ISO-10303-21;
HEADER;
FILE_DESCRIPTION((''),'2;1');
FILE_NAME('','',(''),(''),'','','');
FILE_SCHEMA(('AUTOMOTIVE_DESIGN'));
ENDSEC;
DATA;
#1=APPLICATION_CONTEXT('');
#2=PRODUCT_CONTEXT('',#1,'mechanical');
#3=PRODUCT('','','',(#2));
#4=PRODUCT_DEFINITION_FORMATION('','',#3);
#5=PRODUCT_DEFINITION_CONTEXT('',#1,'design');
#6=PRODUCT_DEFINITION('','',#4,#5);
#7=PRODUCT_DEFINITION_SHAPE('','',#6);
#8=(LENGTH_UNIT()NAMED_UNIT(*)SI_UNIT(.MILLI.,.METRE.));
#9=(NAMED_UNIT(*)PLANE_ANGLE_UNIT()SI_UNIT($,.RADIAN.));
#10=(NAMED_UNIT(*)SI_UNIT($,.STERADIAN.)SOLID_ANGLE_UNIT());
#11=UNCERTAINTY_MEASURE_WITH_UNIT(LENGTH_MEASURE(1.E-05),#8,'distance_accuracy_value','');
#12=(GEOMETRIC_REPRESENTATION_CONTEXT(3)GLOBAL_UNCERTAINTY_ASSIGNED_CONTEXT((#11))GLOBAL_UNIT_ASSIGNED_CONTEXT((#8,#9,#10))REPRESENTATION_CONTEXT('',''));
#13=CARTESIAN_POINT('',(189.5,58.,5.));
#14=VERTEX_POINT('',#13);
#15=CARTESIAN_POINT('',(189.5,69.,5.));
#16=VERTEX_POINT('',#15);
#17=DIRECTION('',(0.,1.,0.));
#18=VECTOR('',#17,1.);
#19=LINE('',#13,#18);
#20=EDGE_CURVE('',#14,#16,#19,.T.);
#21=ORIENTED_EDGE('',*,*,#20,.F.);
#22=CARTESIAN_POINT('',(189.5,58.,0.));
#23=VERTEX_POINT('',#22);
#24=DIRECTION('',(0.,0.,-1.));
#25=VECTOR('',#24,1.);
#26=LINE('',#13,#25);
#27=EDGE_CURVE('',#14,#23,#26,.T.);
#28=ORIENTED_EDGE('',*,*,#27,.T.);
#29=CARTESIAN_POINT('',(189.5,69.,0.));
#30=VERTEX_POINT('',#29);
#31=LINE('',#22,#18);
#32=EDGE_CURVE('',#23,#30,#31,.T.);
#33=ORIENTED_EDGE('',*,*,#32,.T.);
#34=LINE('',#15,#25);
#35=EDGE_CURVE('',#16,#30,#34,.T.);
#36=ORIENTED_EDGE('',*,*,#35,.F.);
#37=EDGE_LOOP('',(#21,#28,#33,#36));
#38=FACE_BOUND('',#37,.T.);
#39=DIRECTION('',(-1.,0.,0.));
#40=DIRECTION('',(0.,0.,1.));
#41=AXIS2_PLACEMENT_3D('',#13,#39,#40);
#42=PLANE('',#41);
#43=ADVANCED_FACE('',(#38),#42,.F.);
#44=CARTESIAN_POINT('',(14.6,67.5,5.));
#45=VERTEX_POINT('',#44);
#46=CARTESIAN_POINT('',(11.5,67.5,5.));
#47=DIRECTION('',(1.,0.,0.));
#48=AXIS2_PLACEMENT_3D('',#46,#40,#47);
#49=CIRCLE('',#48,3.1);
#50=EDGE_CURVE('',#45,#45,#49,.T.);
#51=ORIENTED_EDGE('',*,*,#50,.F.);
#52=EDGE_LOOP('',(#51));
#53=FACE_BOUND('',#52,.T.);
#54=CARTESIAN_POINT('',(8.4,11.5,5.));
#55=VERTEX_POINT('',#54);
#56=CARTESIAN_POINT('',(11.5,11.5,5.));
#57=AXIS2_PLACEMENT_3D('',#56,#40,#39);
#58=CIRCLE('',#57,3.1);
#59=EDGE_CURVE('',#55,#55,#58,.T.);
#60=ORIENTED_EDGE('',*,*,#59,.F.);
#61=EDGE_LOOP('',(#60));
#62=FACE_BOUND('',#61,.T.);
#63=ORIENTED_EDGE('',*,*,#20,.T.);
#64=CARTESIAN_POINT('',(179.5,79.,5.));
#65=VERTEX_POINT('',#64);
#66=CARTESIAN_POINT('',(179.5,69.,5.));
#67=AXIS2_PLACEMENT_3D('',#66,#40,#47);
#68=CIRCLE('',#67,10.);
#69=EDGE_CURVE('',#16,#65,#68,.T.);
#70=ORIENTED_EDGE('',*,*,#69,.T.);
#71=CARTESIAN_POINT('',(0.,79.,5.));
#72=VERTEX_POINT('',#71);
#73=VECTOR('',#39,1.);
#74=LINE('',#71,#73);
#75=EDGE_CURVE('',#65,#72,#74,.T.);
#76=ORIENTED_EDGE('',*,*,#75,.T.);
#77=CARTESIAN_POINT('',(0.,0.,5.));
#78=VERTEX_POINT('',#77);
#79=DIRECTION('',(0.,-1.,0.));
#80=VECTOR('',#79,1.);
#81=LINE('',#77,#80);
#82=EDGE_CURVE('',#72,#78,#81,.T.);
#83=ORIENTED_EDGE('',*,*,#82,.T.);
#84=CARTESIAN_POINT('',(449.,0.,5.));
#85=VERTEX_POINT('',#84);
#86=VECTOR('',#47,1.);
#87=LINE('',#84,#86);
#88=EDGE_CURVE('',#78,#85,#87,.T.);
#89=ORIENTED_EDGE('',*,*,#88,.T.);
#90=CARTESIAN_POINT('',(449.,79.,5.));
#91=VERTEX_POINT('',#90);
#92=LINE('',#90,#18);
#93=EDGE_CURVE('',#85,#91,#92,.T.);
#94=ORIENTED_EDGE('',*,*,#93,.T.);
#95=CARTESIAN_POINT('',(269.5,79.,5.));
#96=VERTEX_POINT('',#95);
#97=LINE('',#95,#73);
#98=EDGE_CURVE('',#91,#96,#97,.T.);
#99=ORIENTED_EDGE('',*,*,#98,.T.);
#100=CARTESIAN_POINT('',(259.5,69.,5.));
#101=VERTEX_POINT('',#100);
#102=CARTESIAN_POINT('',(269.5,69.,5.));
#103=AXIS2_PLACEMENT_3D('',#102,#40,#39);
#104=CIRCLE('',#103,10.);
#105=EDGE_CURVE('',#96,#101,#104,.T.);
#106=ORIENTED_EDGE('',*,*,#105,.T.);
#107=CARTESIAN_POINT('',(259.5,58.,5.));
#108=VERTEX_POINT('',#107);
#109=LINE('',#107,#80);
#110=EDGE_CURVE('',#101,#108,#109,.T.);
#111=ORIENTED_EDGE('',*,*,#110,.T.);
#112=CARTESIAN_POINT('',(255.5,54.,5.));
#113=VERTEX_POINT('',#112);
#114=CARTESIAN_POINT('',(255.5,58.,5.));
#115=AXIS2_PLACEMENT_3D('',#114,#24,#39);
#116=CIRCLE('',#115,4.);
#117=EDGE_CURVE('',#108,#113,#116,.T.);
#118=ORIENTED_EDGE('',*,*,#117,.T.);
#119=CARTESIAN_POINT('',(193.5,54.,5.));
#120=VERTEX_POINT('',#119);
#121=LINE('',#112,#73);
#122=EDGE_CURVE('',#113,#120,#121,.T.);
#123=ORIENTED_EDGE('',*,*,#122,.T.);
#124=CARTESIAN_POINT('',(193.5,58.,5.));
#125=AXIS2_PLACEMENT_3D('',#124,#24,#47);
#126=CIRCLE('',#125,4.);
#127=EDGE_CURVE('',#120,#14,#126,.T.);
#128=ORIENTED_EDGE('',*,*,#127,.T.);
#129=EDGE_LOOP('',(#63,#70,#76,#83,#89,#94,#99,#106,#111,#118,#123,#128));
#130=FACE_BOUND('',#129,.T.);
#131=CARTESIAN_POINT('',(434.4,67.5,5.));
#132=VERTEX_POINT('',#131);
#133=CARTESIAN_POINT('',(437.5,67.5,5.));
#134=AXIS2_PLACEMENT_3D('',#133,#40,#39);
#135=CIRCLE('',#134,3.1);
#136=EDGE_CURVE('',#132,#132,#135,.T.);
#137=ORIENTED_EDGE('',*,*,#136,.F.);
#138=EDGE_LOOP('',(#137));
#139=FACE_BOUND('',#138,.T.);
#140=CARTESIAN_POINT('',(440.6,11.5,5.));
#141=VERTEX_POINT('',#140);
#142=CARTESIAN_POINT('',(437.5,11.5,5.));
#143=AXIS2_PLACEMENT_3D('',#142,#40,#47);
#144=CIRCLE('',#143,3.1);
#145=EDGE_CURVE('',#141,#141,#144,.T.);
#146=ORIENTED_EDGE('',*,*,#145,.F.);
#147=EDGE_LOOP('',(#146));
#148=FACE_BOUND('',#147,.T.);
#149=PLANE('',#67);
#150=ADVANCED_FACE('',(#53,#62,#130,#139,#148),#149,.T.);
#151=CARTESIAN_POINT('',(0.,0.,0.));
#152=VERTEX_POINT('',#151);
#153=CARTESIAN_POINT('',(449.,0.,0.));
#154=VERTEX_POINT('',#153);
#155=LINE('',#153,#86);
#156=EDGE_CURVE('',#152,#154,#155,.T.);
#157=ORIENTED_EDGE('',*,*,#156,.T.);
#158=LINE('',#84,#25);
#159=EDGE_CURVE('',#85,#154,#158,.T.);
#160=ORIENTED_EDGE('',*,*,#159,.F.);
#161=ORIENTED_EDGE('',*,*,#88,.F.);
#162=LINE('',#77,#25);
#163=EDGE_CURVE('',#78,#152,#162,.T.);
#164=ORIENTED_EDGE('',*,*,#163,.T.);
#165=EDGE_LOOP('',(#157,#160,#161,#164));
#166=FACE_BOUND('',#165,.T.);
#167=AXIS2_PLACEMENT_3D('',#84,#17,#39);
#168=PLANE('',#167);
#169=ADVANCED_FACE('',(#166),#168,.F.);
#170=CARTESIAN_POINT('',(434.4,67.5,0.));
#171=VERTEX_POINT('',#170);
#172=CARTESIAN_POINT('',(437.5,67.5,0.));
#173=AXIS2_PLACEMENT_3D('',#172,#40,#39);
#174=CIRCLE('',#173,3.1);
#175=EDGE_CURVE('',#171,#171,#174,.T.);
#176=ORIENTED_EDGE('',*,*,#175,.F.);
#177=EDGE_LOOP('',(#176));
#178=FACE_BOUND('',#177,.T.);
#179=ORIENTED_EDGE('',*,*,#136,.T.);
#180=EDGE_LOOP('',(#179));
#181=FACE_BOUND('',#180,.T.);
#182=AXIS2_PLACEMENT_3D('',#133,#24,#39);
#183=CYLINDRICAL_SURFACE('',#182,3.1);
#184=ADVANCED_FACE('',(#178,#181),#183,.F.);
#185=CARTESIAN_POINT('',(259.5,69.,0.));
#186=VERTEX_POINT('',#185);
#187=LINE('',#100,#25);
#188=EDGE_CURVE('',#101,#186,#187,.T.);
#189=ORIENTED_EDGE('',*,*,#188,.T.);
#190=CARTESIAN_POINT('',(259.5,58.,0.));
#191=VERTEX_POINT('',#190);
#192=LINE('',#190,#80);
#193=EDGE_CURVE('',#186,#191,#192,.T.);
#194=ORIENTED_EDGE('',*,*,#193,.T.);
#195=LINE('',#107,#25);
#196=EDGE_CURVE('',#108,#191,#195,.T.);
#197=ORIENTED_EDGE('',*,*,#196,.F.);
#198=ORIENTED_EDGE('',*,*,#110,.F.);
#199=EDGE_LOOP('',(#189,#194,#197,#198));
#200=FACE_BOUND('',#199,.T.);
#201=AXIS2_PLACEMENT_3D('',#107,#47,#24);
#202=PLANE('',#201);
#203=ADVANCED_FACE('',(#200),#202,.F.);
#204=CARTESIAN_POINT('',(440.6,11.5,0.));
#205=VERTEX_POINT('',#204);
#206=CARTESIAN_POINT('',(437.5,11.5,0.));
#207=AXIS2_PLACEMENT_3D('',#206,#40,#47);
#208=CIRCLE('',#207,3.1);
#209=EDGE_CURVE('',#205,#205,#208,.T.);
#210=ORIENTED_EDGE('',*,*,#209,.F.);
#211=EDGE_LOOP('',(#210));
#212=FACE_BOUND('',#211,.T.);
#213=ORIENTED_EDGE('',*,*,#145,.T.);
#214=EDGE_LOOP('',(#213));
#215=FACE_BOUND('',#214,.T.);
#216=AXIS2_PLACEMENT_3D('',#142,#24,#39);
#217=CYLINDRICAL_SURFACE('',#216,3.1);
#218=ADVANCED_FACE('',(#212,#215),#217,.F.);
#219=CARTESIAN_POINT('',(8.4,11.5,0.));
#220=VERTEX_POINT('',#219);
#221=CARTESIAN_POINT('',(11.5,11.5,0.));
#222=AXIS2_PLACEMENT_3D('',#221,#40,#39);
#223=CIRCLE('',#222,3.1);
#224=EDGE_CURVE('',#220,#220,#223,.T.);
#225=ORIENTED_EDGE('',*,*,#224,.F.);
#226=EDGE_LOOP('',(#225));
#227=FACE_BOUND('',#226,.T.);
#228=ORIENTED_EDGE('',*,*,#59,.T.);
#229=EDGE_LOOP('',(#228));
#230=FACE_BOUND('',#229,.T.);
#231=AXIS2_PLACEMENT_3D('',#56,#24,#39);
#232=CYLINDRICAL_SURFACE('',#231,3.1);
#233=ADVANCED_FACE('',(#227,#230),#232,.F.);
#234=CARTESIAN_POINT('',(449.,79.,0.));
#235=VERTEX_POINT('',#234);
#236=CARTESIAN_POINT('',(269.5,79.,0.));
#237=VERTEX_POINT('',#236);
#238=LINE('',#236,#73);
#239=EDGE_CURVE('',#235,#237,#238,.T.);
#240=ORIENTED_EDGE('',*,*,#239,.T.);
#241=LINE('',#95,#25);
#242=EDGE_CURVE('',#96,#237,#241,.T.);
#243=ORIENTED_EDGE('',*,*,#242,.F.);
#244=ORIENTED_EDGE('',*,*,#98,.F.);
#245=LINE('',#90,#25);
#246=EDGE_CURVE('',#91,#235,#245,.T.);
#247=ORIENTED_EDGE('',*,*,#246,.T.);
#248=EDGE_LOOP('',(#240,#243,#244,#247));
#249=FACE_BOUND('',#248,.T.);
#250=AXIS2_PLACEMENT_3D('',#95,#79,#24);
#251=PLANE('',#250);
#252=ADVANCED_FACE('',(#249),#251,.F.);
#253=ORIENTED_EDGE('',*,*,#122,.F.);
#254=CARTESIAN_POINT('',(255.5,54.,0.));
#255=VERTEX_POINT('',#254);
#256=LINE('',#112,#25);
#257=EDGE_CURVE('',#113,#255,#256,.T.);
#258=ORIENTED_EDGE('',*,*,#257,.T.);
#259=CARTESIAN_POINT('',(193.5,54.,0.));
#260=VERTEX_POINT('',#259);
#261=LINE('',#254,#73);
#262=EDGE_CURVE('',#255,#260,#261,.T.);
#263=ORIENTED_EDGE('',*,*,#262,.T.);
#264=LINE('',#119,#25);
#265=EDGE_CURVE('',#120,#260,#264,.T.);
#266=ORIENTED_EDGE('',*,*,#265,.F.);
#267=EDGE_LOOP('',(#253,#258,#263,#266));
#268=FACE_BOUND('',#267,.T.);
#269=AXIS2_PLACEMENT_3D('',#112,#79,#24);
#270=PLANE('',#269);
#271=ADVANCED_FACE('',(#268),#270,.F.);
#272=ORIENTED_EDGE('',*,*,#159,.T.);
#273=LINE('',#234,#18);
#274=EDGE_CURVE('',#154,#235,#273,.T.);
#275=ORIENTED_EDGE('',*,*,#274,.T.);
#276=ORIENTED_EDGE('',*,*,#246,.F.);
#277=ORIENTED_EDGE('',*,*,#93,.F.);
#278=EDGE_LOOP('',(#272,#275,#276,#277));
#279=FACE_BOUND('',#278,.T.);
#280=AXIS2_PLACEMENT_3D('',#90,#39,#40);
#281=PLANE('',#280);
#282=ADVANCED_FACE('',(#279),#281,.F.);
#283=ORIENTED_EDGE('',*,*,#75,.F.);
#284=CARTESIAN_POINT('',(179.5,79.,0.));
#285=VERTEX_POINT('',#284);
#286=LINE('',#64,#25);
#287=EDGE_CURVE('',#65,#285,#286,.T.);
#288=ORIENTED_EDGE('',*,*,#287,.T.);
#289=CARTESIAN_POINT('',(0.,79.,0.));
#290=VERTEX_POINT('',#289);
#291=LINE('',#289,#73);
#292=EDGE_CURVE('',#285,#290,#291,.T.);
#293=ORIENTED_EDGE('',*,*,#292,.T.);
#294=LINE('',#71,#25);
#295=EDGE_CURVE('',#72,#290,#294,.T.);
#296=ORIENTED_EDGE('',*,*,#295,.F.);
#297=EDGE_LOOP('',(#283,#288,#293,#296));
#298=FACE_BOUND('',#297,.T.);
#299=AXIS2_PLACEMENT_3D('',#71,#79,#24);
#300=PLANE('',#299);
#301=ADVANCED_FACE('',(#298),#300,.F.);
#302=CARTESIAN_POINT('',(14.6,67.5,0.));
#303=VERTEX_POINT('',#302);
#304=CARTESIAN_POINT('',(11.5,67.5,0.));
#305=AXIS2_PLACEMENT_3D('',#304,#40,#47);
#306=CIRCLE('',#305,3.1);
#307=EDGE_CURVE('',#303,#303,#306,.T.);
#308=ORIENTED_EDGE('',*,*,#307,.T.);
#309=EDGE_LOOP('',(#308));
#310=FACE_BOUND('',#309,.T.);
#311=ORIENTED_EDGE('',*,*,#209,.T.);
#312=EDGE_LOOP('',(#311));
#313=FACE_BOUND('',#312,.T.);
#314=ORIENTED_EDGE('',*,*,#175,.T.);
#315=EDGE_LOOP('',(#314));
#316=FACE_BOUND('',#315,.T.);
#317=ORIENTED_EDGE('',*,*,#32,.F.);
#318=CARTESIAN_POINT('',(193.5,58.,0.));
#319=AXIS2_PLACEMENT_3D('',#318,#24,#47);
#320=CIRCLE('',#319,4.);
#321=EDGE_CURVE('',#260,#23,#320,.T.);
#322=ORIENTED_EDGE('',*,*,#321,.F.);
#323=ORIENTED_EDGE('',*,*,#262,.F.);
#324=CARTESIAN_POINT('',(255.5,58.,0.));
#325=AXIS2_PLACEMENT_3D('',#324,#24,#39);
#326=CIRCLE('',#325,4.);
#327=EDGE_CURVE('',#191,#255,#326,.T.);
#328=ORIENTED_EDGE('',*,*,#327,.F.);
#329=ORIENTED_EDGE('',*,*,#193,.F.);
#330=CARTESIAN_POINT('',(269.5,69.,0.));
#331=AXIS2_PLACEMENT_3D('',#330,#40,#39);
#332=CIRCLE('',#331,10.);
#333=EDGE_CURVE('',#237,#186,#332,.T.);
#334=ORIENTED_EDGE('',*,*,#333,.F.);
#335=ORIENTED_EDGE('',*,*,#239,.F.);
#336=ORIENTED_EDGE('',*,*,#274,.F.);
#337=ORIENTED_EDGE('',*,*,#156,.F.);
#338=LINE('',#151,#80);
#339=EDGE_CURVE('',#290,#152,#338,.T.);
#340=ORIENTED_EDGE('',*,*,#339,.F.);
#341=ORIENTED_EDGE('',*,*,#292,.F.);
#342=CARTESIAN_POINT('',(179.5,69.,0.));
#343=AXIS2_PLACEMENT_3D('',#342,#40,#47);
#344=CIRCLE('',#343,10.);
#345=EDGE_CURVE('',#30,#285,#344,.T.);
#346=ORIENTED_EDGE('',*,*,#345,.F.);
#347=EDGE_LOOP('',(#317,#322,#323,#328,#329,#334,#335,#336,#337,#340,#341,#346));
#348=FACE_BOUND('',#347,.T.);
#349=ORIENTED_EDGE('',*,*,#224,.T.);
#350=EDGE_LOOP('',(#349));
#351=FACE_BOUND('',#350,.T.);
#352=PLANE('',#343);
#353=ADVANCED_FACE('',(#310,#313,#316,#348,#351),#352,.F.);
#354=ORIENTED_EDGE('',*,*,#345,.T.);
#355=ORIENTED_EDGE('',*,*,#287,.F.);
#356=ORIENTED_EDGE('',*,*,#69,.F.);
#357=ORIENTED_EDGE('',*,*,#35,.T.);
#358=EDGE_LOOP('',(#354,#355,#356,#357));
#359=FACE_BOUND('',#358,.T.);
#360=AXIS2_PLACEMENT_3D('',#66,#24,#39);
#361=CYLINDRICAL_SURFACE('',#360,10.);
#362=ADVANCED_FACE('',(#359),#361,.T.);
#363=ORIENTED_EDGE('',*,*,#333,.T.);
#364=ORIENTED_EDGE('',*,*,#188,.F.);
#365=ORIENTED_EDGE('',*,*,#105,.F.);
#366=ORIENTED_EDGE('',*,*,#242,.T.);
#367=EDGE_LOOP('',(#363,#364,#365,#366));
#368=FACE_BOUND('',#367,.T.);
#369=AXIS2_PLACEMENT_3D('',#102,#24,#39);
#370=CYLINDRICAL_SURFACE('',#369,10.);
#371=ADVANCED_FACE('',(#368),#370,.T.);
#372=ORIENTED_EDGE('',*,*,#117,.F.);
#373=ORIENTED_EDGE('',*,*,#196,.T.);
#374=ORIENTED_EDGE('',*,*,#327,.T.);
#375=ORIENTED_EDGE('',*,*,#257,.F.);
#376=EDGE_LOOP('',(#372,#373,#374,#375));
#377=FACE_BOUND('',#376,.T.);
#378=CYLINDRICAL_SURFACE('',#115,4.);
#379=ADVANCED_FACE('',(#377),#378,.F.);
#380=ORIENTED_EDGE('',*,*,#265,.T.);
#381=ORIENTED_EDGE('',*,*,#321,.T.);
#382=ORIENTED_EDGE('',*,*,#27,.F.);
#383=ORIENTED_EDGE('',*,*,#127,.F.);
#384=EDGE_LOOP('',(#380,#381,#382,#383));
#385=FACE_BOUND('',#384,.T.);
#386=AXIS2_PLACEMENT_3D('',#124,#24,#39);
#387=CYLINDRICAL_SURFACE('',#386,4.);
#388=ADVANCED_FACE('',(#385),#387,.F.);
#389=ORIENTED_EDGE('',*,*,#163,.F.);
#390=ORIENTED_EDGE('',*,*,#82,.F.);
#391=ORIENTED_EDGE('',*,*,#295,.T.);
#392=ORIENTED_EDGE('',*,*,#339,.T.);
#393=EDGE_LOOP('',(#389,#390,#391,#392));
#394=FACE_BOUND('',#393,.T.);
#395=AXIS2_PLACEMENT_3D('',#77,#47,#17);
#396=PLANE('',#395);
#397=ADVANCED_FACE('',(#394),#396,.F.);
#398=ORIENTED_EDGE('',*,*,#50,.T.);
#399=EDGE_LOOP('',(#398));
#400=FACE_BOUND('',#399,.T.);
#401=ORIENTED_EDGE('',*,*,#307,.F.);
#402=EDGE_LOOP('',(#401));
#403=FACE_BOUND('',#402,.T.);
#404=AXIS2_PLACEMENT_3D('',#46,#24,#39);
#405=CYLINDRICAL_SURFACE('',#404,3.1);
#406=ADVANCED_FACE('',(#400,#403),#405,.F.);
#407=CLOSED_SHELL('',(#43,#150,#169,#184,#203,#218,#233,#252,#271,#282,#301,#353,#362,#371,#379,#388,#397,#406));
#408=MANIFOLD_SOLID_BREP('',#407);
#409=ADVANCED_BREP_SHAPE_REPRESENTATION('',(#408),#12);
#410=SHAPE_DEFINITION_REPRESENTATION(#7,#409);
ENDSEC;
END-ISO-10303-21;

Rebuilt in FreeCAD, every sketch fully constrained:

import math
import FreeCAD as App
import Part
import Sketcher

V = App.Vector

doc = App.newDocument("Part")
params = doc.addObject("Spreadsheet::Sheet", "Params")
for row, (alias, value) in enumerate([
    ("sketch1_radius", "10 mm"),
    ("sketch1_radius2", "4 mm"),
    ("sketch1_diameter", "6.2 mm"),
    ("sketch1_width", "449 mm"),
    ("sketch1_width2", "62 mm"),
    ("pad1_length", "5 mm"),
], start=1):
    params.set(f"A{row}", alias)
    params.set(f"B{row}", "=" + value)
    params.setAlias(f"B{row}", alias)

body = doc.addObject("PartDesign::Body", "Body")

sketch1 = body.newObject("Sketcher::SketchObject", "Sketch")
sketch1.AttachmentSupport = (doc.getObject("XY_Plane"), [""])
sketch1.MapMode = "FlatFace"
sketch1.addGeometry([
    Part.LineSegment(V(0, 79, 0), V(0, 0, 0)),
    Part.LineSegment(V(0, 0, 0), V(449, 0, 0)),
    Part.LineSegment(V(449, 0, 0), V(449, 79, 0)),
    Part.LineSegment(V(449, 79, 0), V(269.5, 79, 0)),
    Part.ArcOfCircle(Part.Circle(V(269.5, 69, 0), V(0, 0, 1), 10), math.radians(90), math.radians(180)),
    Part.LineSegment(V(259.5, 69, 0), V(259.5, 58, 0)),
    Part.ArcOfCircle(Part.Circle(V(255.5, 58, 0), V(0, 0, 1), 4), math.radians(-90), math.radians(0)),
    Part.LineSegment(V(255.5, 54, 0), V(193.5, 54, 0)),
    Part.ArcOfCircle(Part.Circle(V(193.5, 58, 0), V(0, 0, 1), 4), math.radians(180), math.radians(270)),
    Part.LineSegment(V(189.5, 58, 0), V(189.5, 69, 0)),
    Part.ArcOfCircle(Part.Circle(V(179.5, 69, 0), V(0, 0, 1), 10), math.radians(0), math.radians(90)),
    Part.LineSegment(V(179.5, 79, 0), V(0, 79, 0)),
    Part.Circle(V(437.5, 11.5, 0), V(0, 0, 1), 3.1),
    Part.Circle(V(11.5, 11.5, 0), V(0, 0, 1), 3.1),
    Part.Circle(V(437.5, 67.5, 0), V(0, 0, 1), 3.1),
    Part.Circle(V(11.5, 67.5, 0), V(0, 0, 1), 3.1),
], False)
sketch1.addConstraint([
    Sketcher.Constraint("Coincident", 0, 2, 1, 1),
    Sketcher.Constraint("Coincident", 1, 2, 2, 1),
    Sketcher.Constraint("Coincident", 2, 2, 3, 1),
    Sketcher.Constraint("Tangent", 3, 2, 4, 1),
    Sketcher.Constraint("Tangent", 4, 2, 5, 1),
    Sketcher.Constraint("Tangent", 5, 2, 6, 2),
    Sketcher.Constraint("Tangent", 6, 1, 7, 1),
    Sketcher.Constraint("Tangent", 7, 2, 8, 2),
    Sketcher.Constraint("Tangent", 8, 1, 9, 1),
    Sketcher.Constraint("Tangent", 9, 2, 10, 1),
    Sketcher.Constraint("Tangent", 10, 2, 11, 1),
    Sketcher.Constraint("Coincident", 11, 2, 0, 1),
    Sketcher.Constraint("Vertical", 0),
    Sketcher.Constraint("Horizontal", 1),
    Sketcher.Constraint("Vertical", 2),
    Sketcher.Constraint("Horizontal", 3),
    Sketcher.Constraint("Vertical", 5),
    Sketcher.Constraint("Horizontal", 7),
    Sketcher.Constraint("Vertical", 9),
    Sketcher.Constraint("Horizontal", 11),
    Sketcher.Constraint("Coincident", 0, 2, -1, 1),
    Sketcher.Constraint("Equal", 6, 8),
    Sketcher.Constraint("Equal", 4, 10),
    Sketcher.Constraint("Equal", 12, 13),
    Sketcher.Constraint("Equal", 13, 14),
    Sketcher.Constraint("Equal", 14, 15),
    Sketcher.Constraint("Horizontal", 4, 3, 10, 3),
    Sketcher.Constraint("Horizontal", 12, 3, 13, 3),
    Sketcher.Constraint("Horizontal", 14, 3, 15, 3),
    Sketcher.Constraint("Vertical", 12, 3, 14, 3),
    Sketcher.Constraint("Vertical", 13, 3, 15, 3),
    Sketcher.Constraint("Equal", 3, 11),
    Sketcher.Constraint("Radius", 4, 10.0),
    Sketcher.Constraint("Radius", 6, 4.0),
    Sketcher.Constraint("Diameter", 12, 6.2),
    Sketcher.Constraint("DistanceX", 1, 1, 1, 2, 449.0),
    Sketcher.Constraint("DistanceX", 7, 2, 7, 1, 62.0),
    Sketcher.Constraint("DistanceY", 0, 2, 0, 1, 79.0),
    Sketcher.Constraint("DistanceY", 5, 2, 5, 1, 11.0),
    Sketcher.Constraint("DistanceX", 4, 3, 12, 3, 168.0),
    Sketcher.Constraint("DistanceX", 13, 3, 10, 3, 168.0),
    Sketcher.Constraint("DistanceY", 12, 3, 14, 3, 56.0),
    Sketcher.Constraint("DistanceY", -1, 1, 12, 3, 11.5),
])
sketch1.setExpression("Constraints[32]", "Params.sketch1_radius")
sketch1.setExpression("Constraints[33]", "Params.sketch1_radius2")
sketch1.setExpression("Constraints[34]", "Params.sketch1_diameter")
sketch1.setExpression("Constraints[35]", "Params.sketch1_width")
sketch1.setExpression("Constraints[36]", "Params.sketch1_width2")
pad1 = body.newObject("PartDesign::Pad", "Pad")
pad1.Profile = sketch1
pad1.setExpression("Length", "Params.pad1_length")

doc.recompute()
